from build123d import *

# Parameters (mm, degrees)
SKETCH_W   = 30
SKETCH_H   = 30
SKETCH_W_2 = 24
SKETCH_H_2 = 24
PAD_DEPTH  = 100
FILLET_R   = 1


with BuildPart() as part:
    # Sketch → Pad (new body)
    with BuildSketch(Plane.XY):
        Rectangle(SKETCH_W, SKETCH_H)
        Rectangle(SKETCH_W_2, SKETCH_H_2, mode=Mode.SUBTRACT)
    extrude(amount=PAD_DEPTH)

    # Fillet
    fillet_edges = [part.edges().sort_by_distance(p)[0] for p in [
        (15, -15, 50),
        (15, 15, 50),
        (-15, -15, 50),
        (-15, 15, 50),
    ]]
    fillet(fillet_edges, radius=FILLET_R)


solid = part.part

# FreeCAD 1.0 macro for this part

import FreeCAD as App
import Part
import Sketcher
from FreeCAD import Vector
Q = App.Units.Quantity


def edges_at(feature, points):
    """Names of the edges that pass closest to the given points."""
    edges = feature.Shape.Edges
    near = lambda p: min(range(len(edges)), key=lambda i: edges[i].distToShape(Part.Vertex(*p))[0])
    return sorted({f"Edge{near(p) + 1}" for p in points})


def add_polygon(sketch, points):
    """Adds a closed chain of lines whose ends are joined by coincident constraints."""
    first, n = sketch.GeometryCount, len(points)
    for a, b in zip(points, points[1:] + points[:1]):
        sketch.addGeometry(Part.LineSegment(App.Vector(*a, 0), App.Vector(*b, 0)), False)
    for i in range(n):
        sketch.addConstraint(Sketcher.Constraint("Coincident", first + i, 2, first + (i + 1) % n, 1))

doc = App.newDocument("Part")
body = doc.addObject("PartDesign::Body", "Body")

# Sketch on XY plane
sketch1 = doc.addObject("Sketcher::SketchObject", "Sketch")
body.addObject(sketch1)
sketch1.AttachmentSupport = (doc.XY_Plane, [""])
sketch1.MapMode = "FlatFace"
add_polygon(sketch1, [(-15, 15), (-15, -15), (15, -15), (15, 15)])  # lines 0-3
add_polygon(sketch1, [(12, -12), (-12, -12), (-12, 12), (12, 12)])  # lines 4-7
sketch1.addConstraint([
    Sketcher.Constraint("Vertical", 0),
    Sketcher.Constraint("Horizontal", 1),
    Sketcher.Constraint("Vertical", 2),
    Sketcher.Constraint("Horizontal", 3),
    Sketcher.Constraint("Horizontal", 4),
    Sketcher.Constraint("Vertical", 5),
    Sketcher.Constraint("Horizontal", 6),
    Sketcher.Constraint("Vertical", 7),
    Sketcher.Constraint("Symmetric", 0, 2, 2, 2, -1, 1),
    Sketcher.Constraint("Symmetric", 4, 2, 6, 2, -1, 1),
    Sketcher.Constraint("Equal", 3, 0),
    Sketcher.Constraint("Equal", 6, 5),
    Sketcher.Constraint("DistanceX", 1, 1, 1, 2, Q("30 mm")),
    Sketcher.Constraint("DistanceX", 4, 2, 4, 1, Q("24 mm")),
])
pad1 = doc.addObject("PartDesign::Pad", "Pad")
body.addObject(pad1)
pad1.Profile = sketch1
pad1.Length = 100
doc.recompute()

fillet = doc.addObject("PartDesign::Fillet", "Fillet")
body.addObject(fillet)
fillet.Base = (pad1, edges_at(pad1, [
    (15, -15, 50),
    (15, 15, 50),
    (-15, -15, 50),
    (-15, 15, 50),
]))
fillet.Radius = 1

doc.recompute()
